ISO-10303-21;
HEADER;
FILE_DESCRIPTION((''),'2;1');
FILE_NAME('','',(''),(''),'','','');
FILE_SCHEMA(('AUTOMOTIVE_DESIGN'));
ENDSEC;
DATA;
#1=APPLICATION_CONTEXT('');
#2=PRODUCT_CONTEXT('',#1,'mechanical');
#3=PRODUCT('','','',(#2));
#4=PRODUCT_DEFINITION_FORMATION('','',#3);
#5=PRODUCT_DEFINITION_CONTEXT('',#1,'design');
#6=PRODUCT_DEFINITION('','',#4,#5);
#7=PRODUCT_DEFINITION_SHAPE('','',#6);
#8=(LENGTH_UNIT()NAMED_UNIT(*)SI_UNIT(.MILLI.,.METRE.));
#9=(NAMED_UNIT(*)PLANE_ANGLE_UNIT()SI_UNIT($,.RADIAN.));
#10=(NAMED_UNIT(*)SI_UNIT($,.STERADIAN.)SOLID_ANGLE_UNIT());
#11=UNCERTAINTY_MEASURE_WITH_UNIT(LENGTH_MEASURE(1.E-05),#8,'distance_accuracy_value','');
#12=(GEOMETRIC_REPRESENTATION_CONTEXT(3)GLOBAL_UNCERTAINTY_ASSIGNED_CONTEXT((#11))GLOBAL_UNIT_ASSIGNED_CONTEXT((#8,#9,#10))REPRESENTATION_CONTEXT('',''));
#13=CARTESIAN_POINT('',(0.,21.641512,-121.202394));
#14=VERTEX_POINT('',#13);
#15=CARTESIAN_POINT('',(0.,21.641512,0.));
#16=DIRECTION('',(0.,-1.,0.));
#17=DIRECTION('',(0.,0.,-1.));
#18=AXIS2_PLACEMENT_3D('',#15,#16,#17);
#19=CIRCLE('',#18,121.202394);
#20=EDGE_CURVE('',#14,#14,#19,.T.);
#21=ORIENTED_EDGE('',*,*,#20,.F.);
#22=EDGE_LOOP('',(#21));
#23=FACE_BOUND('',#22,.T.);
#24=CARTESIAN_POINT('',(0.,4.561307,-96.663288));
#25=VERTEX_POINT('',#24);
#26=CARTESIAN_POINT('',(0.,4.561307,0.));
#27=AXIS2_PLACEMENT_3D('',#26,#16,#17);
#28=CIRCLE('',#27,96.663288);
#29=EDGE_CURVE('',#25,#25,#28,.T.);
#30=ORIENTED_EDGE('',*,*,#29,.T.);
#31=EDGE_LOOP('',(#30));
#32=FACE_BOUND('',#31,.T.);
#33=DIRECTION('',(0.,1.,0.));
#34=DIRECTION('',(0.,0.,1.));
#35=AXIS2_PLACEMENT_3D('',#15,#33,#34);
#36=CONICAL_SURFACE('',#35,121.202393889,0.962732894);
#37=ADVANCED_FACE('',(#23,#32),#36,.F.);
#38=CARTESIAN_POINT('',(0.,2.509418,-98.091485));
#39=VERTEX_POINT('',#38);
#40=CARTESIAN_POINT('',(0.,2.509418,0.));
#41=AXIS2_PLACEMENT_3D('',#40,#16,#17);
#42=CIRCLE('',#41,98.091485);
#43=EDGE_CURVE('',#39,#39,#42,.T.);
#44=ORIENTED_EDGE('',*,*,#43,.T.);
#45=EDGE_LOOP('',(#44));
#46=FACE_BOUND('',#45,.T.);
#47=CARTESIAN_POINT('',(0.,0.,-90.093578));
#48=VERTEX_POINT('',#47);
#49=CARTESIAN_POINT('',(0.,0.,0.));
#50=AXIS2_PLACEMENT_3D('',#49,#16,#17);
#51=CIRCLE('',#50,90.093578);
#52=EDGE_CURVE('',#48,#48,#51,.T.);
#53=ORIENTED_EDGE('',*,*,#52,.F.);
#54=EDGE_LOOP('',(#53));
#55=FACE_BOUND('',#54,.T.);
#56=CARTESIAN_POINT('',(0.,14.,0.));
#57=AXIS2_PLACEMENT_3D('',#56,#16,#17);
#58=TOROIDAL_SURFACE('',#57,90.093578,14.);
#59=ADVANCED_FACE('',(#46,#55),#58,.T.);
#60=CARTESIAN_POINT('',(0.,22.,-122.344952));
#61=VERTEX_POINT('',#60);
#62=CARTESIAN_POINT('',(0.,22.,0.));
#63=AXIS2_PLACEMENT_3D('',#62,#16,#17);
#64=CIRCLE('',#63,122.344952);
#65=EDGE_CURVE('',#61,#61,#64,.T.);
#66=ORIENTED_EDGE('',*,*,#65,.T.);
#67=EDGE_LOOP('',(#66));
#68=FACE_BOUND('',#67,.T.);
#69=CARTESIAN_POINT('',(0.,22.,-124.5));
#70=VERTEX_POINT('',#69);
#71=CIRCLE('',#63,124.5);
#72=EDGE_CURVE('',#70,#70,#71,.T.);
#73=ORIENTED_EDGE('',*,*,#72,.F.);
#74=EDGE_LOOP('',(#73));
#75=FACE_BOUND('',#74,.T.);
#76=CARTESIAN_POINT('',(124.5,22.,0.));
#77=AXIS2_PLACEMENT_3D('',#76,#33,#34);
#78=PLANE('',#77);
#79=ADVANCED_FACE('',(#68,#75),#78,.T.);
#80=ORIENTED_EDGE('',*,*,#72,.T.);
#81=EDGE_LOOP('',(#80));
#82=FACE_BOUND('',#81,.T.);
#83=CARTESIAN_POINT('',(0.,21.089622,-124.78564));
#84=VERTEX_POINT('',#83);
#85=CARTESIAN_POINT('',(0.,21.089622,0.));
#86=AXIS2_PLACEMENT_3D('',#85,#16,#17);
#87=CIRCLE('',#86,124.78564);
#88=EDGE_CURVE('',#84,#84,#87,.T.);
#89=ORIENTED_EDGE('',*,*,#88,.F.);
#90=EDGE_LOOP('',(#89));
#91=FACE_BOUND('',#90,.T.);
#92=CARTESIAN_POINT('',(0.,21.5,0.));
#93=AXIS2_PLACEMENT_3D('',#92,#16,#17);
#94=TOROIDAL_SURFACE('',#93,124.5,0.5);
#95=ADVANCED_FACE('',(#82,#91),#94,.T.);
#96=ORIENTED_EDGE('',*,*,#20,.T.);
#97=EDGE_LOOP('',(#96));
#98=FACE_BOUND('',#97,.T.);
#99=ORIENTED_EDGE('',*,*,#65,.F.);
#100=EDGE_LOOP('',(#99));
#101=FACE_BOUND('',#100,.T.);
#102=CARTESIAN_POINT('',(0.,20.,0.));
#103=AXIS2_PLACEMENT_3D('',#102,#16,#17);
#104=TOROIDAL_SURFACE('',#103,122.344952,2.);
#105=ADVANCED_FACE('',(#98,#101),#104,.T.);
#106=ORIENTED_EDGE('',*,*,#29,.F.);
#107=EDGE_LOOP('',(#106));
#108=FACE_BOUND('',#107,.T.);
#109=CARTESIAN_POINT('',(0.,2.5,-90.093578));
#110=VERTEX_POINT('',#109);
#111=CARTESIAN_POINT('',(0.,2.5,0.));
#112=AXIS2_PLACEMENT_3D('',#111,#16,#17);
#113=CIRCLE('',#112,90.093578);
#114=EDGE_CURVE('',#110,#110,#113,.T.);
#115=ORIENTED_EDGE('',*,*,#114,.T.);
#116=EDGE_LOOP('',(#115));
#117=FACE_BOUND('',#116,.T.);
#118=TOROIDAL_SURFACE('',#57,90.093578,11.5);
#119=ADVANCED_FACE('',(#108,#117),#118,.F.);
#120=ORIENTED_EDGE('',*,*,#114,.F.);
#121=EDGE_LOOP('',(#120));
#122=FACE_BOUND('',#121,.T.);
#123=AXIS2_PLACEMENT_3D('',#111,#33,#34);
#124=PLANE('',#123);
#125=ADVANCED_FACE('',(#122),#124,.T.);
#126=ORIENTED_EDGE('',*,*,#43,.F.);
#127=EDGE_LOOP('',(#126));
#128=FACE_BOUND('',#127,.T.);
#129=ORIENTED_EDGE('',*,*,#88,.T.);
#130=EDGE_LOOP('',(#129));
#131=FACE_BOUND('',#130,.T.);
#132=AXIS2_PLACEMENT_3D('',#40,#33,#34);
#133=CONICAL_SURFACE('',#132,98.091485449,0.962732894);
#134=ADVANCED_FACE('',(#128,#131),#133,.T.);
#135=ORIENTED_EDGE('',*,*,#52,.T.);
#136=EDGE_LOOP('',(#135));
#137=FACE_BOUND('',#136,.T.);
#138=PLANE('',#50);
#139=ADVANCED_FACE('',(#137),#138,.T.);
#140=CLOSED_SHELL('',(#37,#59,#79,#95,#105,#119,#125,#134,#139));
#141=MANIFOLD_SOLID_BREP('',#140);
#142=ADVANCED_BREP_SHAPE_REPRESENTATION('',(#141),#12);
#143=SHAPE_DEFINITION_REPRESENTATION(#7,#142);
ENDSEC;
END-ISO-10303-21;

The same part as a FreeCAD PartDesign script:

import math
import FreeCAD as App
import Part
import Sketcher

V = App.Vector

doc = App.newDocument("Part")
body = doc.addObject("PartDesign::Body", "Body")

sketch1 = body.newObject("Sketcher::SketchObject", "Sketch")
sketch1.AttachmentSupport = (doc.getObject("XY_Plane"), [""])
sketch1.MapMode = "FlatFace"
sketch1.addGeometry([
    Part.LineSegment(V(0, 0, 0), V(90.1, 0, 0)),
    Part.ArcOfCircle(Part.Circle(V(90.1, 14, 0), V(0, 0, 1), 14), math.radians(-90), math.radians(-55)),
    Part.LineSegment(V(98.1, 2.5, 0), V(124.8, 21.1, 0)),
    Part.ArcOfCircle(Part.Circle(V(124.5, 21.5, 0), V(0, 0, 1), 0.5), math.radians(-55), math.radians(90)),
    Part.LineSegment(V(124.5, 22, 0), V(122.3, 22, 0)),
    Part.ArcOfCircle(Part.Circle(V(122.3, 20, 0), V(0, 0, 1), 2), math.radians(90), math.radians(125)),
    Part.LineSegment(V(121.2, 21.6, 0), V(96.7, 4.6, 0)),
    Part.ArcOfCircle(Part.Circle(V(90.1, 14, 0), V(0, 0, 1), 11.5), math.radians(-90), math.radians(-55)),
    Part.LineSegment(V(90.1, 2.5, 0), V(0, 2.5, 0)),
    Part.LineSegment(V(0, 2.5, 0), V(0, 0, 0)),
], False)
sketch1.addConstraint([
    Sketcher.Constraint("Tangent", 0, 2, 1, 1),
    Sketcher.Constraint("Tangent", 1, 2, 2, 1),
    Sketcher.Constraint("Tangent", 2, 2, 3, 1),
    Sketcher.Constraint("Tangent", 3, 2, 4, 1),
    Sketcher.Constraint("Tangent", 4, 2, 5, 1),
    Sketcher.Constraint("Tangent", 5, 2, 6, 1),
    Sketcher.Constraint("Tangent", 6, 2, 7, 2),
    Sketcher.Constraint("Tangent", 7, 1, 8, 1),
    Sketcher.Constraint("Coincident", 8, 2, 9, 1),
    Sketcher.Constraint("Coincident", 9, 2, 0, 1),
    Sketcher.Constraint("Horizontal", 0),
    Sketcher.Constraint("Horizontal", 4),
    Sketcher.Constraint("Horizontal", 8),
    Sketcher.Constraint("Vertical", 9),
    Sketcher.Constraint("Coincident", 9, 2, -1, 1),
    Sketcher.Constraint("Coincident", 7, 3, 1, 3),
    Sketcher.Constraint("Parallel", 2, 6),
    Sketcher.Constraint("Radius", 1, 14.0),
    Sketcher.Constraint("Radius", 5, 2.0),
    Sketcher.Constraint("Radius", 3, 0.5),
    Sketcher.Constraint("Radius", 7, 11.5),
    Sketcher.Constraint("DistanceY", -1, 1, 5, 3, 20.0),
    Sketcher.Constraint("DistanceX", -1, 1, 3, 3, 124.5),
    Sketcher.Constraint("DistanceX", 0, 1, 0, 2, 90.093578),
])
revolution = body.newObject("PartDesign::Revolution", "Revolution")
revolution.Profile = sketch1
revolution.ReferenceAxis = (sketch1, ["V_Axis"])
revolution.Angle = 360

doc.recompute()
